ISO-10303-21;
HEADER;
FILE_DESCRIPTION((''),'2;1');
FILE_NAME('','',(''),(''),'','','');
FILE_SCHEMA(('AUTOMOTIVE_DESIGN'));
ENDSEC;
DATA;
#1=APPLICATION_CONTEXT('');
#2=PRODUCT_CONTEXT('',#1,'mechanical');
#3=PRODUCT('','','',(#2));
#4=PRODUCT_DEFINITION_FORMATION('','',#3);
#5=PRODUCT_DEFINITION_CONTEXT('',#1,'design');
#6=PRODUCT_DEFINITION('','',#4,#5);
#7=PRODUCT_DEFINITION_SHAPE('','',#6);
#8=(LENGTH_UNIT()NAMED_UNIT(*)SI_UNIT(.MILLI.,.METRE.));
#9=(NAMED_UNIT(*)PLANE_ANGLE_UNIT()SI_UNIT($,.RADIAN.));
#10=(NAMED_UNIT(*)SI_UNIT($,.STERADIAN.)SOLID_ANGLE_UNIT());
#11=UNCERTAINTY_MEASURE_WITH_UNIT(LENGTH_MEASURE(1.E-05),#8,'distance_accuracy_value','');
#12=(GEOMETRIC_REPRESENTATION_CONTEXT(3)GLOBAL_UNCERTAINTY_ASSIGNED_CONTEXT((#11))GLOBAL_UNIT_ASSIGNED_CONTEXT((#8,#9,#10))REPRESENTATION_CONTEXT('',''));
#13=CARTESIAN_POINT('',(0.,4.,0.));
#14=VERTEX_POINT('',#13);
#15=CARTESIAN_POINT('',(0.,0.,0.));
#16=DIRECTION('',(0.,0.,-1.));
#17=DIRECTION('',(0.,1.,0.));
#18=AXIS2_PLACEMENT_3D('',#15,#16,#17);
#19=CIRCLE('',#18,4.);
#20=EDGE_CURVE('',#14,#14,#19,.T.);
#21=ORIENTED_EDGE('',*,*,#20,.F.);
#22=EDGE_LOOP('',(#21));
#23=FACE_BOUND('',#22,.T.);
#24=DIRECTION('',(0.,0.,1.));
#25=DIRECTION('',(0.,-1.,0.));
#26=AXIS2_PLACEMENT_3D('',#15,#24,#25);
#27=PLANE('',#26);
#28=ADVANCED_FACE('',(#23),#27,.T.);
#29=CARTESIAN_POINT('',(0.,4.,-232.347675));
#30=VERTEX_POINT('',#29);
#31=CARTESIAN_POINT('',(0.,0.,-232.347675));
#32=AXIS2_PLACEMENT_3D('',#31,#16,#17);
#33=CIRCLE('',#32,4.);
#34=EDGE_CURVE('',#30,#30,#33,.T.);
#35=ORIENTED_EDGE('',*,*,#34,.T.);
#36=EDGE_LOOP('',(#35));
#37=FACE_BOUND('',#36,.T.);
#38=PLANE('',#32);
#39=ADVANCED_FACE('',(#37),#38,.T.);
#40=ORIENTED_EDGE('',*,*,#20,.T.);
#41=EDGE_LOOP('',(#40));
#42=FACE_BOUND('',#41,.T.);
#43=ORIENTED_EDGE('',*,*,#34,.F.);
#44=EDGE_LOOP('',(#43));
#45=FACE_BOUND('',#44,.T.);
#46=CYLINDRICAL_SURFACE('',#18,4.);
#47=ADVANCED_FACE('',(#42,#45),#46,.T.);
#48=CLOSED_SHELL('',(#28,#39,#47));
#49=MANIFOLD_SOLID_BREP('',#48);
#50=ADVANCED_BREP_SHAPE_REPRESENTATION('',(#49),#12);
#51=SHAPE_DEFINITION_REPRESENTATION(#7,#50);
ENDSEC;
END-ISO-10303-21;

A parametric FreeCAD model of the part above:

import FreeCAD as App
import Part
import Sketcher


def add_polygon(sketch, points):
    """Adds a closed chain of lines whose ends are joined by coincident constraints."""
    first, n = sketch.GeometryCount, len(points)
    for a, b in zip(points, points[1:] + points[:1]):
        sketch.addGeometry(Part.LineSegment(App.Vector(*a, 0), App.Vector(*b, 0)), False)
    for i in range(n):
        sketch.addConstraint(Sketcher.Constraint("Coincident", first + i, 2, first + (i + 1) % n, 1))

doc = App.newDocument("Part")
params = doc.addObject("Spreadsheet::Sheet", "Params")
for row, (alias, value) in enumerate([
    ("sketch1_width", "4 mm"),
    ("revolution_angle", "360 deg"),
], start=1):
    params.set(f"A{row}", alias)
    params.set(f"B{row}", "=" + value)
    params.setAlias(f"B{row}", alias)

body = doc.addObject("PartDesign::Body", "Body")

sketch1 = doc.addObject("Sketcher::SketchObject", "Sketch")
body.addObject(sketch1)
sketch1.AttachmentSupport = (doc.YZ_Plane, [""])
sketch1.MapMode = "FlatFace"
add_polygon(sketch1, [(4, 0), (0, 0), (0, -232.3), (4, -232.3)])
sketch1.addConstraint(Sketcher.Constraint("Horizontal", 0))
sketch1.addConstraint(Sketcher.Constraint("Vertical", 1))
sketch1.addConstraint(Sketcher.Constraint("Horizontal", 2))
sketch1.addConstraint(Sketcher.Constraint("Vertical", 3))
sketch1.addConstraint(Sketcher.Constraint("Coincident", 0, 2, -1, 1))
sketch1.addConstraint(Sketcher.Constraint("DistanceX", 0, 2, 0, 1, 4.0))
sketch1.addConstraint(Sketcher.Constraint("DistanceY", 1, 2, 1, 1, 232.347675))
sketch1.setExpression("Constraints[9]", "Params.sketch1_width")
revolution = doc.addObject("PartDesign::Revolution", "Revolution")
body.addObject(revolution)
revolution.Profile = sketch1
revolution.ReferenceAxis = (sketch1, ["V_Axis"])
revolution.setExpression("Angle", "Params.revolution_angle")

doc.recompute()
